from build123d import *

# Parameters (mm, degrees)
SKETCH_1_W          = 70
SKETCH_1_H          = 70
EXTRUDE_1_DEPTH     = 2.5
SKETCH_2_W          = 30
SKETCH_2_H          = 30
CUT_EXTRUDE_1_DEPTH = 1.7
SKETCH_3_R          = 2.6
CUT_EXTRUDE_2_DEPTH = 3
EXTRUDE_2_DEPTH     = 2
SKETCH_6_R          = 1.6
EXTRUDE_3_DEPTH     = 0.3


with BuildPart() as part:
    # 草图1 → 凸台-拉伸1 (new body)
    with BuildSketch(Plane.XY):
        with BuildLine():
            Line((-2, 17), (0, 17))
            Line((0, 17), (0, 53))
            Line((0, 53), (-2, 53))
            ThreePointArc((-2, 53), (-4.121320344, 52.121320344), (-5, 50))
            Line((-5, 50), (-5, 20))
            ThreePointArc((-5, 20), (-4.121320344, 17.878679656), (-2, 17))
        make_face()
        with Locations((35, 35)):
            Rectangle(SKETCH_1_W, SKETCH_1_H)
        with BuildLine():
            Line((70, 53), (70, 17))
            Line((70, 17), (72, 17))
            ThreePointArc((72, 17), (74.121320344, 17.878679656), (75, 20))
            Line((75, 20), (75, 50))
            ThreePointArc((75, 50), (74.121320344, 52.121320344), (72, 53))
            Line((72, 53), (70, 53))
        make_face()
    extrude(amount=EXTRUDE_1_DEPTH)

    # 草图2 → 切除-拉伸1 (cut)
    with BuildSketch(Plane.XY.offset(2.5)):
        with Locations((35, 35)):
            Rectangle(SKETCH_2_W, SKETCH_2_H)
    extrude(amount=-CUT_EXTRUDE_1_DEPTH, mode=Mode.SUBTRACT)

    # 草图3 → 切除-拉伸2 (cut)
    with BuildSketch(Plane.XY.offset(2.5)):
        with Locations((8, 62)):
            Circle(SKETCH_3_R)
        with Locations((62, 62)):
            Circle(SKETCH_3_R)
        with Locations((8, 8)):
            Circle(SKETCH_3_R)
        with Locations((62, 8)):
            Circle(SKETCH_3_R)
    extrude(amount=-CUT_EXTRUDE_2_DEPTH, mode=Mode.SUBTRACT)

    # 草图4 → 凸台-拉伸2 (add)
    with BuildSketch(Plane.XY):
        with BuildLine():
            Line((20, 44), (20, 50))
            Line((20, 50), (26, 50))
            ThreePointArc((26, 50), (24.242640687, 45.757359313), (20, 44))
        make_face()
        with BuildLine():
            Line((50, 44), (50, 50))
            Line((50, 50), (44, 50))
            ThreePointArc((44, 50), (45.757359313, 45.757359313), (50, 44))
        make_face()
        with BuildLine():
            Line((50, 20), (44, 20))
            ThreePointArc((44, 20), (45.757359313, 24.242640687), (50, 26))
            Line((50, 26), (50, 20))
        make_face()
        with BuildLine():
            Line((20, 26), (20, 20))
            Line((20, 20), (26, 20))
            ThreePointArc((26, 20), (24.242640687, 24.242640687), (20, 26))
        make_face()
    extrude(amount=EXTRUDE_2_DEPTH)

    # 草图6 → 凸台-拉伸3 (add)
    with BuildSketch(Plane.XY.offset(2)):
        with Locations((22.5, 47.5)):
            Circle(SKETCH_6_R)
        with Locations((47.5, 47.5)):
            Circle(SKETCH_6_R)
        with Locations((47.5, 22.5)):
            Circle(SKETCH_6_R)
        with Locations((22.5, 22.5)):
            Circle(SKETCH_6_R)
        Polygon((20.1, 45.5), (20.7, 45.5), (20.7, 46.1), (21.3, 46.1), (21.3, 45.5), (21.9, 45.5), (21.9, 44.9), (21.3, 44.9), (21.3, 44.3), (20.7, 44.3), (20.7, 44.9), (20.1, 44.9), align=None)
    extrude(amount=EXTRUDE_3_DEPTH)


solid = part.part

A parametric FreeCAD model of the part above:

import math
import FreeCAD as App
import Part
import Sketcher
from FreeCAD import Vector
Q = App.Units.Quantity


def add_polygon(sketch, points):
    """Adds a closed chain of lines whose ends are joined by coincident constraints."""
    first, n = sketch.GeometryCount, len(points)
    for a, b in zip(points, points[1:] + points[:1]):
        sketch.addGeometry(Part.LineSegment(App.Vector(*a, 0), App.Vector(*b, 0)), False)
    for i in range(n):
        sketch.addConstraint(Sketcher.Constraint("Coincident", first + i, 2, first + (i + 1) % n, 1))

doc = App.newDocument("Part")
body = doc.addObject("PartDesign::Body", "Body")

sketch1 = doc.addObject("Sketcher::SketchObject", "Sketch")
body.addObject(sketch1)
sketch1.AttachmentSupport = (doc.XY_Plane, [""])
sketch1.MapMode = "FlatFace"
sketch1.addGeometry(Part.LineSegment(Vector(-2, 17, 0), Vector(0, 17, 0)), False)
sketch1.addGeometry(Part.LineSegment(Vector(0, 17, 0), Vector(0, 0, 0)), False)
sketch1.addGeometry(Part.LineSegment(Vector(0, 0, 0), Vector(70, 0, 0)), False)
sketch1.addGeometry(Part.LineSegment(Vector(70, 0, 0), Vector(70, 17, 0)), False)
sketch1.addGeometry(Part.LineSegment(Vector(70, 17, 0), Vector(72, 17, 0)), False)
sketch1.addGeometry(Part.ArcOfCircle(Part.Circle(Vector(72, 20, 0), Vector(0, 0, 1), 3), math.radians(-90), math.radians(0)), False)
sketch1.addGeometry(Part.LineSegment(Vector(75, 20, 0), Vector(75, 50, 0)), False)
sketch1.addGeometry(Part.ArcOfCircle(Part.Circle(Vector(72, 50, 0), Vector(0, 0, 1), 3), math.radians(0), math.radians(90)), False)
sketch1.addGeometry(Part.LineSegment(Vector(72, 53, 0), Vector(70, 53, 0)), False)
sketch1.addGeometry(Part.LineSegment(Vector(70, 53, 0), Vector(70, 70, 0)), False)
sketch1.addGeometry(Part.LineSegment(Vector(70, 70, 0), Vector(0, 70, 0)), False)
sketch1.addGeometry(Part.LineSegment(Vector(0, 70, 0), Vector(0, 53, 0)), False)
sketch1.addGeometry(Part.LineSegment(Vector(0, 53, 0), Vector(-2, 53, 0)), False)
sketch1.addGeometry(Part.ArcOfCircle(Part.Circle(Vector(-2, 50, 0), Vector(0, 0, 1), 3), math.radians(90), math.radians(180)), False)
sketch1.addGeometry(Part.LineSegment(Vector(-5, 50, 0), Vector(-5, 20, 0)), False)
sketch1.addGeometry(Part.ArcOfCircle(Part.Circle(Vector(-2, 20, 0), Vector(0, 0, 1), 3), math.radians(180), math.radians(270)), False)
sketch1.addConstraint(Sketcher.Constraint("Coincident", 0, 2, 1, 1))
sketch1.addConstraint(Sketcher.Constraint("Coincident", 1, 2, 2, 1))
sketch1.addConstraint(Sketcher.Constraint("Coincident", 2, 2, 3, 1))
sketch1.addConstraint(Sketcher.Constraint("Coincident", 3, 2, 4, 1))
sketch1.addConstraint(Sketcher.Constraint("Tangent", 4, 2, 5, 1))
sketch1.addConstraint(Sketcher.Constraint("Tangent", 5, 2, 6, 1))
sketch1.addConstraint(Sketcher.Constraint("Tangent", 6, 2, 7, 1))
sketch1.addConstraint(Sketcher.Constraint("Tangent", 7, 2, 8, 1))
sketch1.addConstraint(Sketcher.Constraint("Coincident", 8, 2, 9, 1))
sketch1.addConstraint(Sketcher.Constraint("Coincident", 9, 2, 10, 1))
sketch1.addConstraint(Sketcher.Constraint("Coincident", 10, 2, 11, 1))
sketch1.addConstraint(Sketcher.Constraint("Coincident", 11, 2, 12, 1))
sketch1.addConstraint(Sketcher.Constraint("Tangent", 12, 2, 13, 1))
sketch1.addConstraint(Sketcher.Constraint("Tangent", 13, 2, 14, 1))
sketch1.addConstraint(Sketcher.Constraint("Tangent", 14, 2, 15, 1))
sketch1.addConstraint(Sketcher.Constraint("Tangent", 15, 2, 0, 1))
sketch1.addConstraint(Sketcher.Constraint("Horizontal", 0))
sketch1.addConstraint(Sketcher.Constraint("Vertical", 1))
sketch1.addConstraint(Sketcher.Constraint("Horizontal", 2))
sketch1.addConstraint(Sketcher.Constraint("Vertical", 3))
sketch1.addConstraint(Sketcher.Constraint("Horizontal", 4))
sketch1.addConstraint(Sketcher.Constraint("Vertical", 6))
sketch1.addConstraint(Sketcher.Constraint("Horizontal", 8))
sketch1.addConstraint(Sketcher.Constraint("Vertical", 9))
sketch1.addConstraint(Sketcher.Constraint("Horizontal", 10))
sketch1.addConstraint(Sketcher.Constraint("Vertical", 11))
sketch1.addConstraint(Sketcher.Constraint("Horizontal", 12))
sketch1.addConstraint(Sketcher.Constraint("Vertical", 14))
sketch1.addConstraint(Sketcher.Constraint("Coincident", 1, 2, -1, 1))
sketch1.addConstraint(Sketcher.Constraint("Equal", 5, 7))
sketch1.addConstraint(Sketcher.Constraint("Equal", 7, 13))
sketch1.addConstraint(Sketcher.Constraint("Equal", 13, 15))
sketch1.addConstraint(Sketcher.Constraint("PointOnObject", 10, 2, -2))
sketch1.addConstraint(Sketcher.Constraint("Horizontal", 7, 3, 13, 3))
sketch1.addConstraint(Sketcher.Constraint("Horizontal", 5, 3, 15, 3))
sketch1.addConstraint(Sketcher.Constraint("Vertical", 3, 2, 8, 2))
sketch1.addConstraint(Sketcher.Constraint("Equal", 0, 4))
sketch1.addConstraint(Sketcher.Constraint("Equal", 3, 9))
sketch1.addConstraint(Sketcher.Constraint("Radius", 5, Q("3 mm")))
sketch1.addConstraint(Sketcher.Constraint("DistanceX", 0, 1, 0, 2, Q("2 mm")))
sketch1.addConstraint(Sketcher.Constraint("DistanceX", 2, 1, 2, 2, Q("70 mm")))
sketch1.addConstraint(Sketcher.Constraint("DistanceY", 1, 2, 1, 1, Q("17 mm")))
sketch1.addConstraint(Sketcher.Constraint("DistanceY", 6, 1, 6, 2, Q("30 mm")))
pad1 = doc.addObject("PartDesign::Pad", "Pad")
body.addObject(pad1)
pad1.Profile = sketch1
pad1.Length = 2.5

sketch2 = doc.addObject("Sketcher::SketchObject", "Sketch001")
body.addObject(sketch2)
sketch2.AttachmentSupport = (doc.XY_Plane, [""])
sketch2.MapMode = "FlatFace"
sketch2.AttachmentOffset = App.Placement(Vector(0, 0, 2.5), App.Rotation())
add_polygon(sketch2, [(20, 50), (20, 20), (50, 20), (50, 50)])
sketch2.addConstraint(Sketcher.Constraint("Vertical", 0))
sketch2.addConstraint(Sketcher.Constraint("Horizontal", 1))
sketch2.addConstraint(Sketcher.Constraint("Vertical", 2))
sketch2.addConstraint(Sketcher.Constraint("Horizontal", 3))
sketch2.addConstraint(Sketcher.Constraint("Equal", 3, 0))
sketch2.addConstraint(Sketcher.Constraint("DistanceX", 1, 1, 1, 2, Q("30 mm")))
sketch2.addConstraint(Sketcher.Constraint("DistanceX", -1, 1, 0, 2, Q("20 mm")))
sketch2.addConstraint(Sketcher.Constraint("DistanceY", -1, 1, 0, 2, Q("20 mm")))
pocket1 = doc.addObject("PartDesign::Pocket", "Pocket")
body.addObject(pocket1)
pocket1.Profile = sketch2
pocket1.Length = 1.7

sketch3 = doc.addObject("Sketcher::SketchObject", "Sketch002")
body.addObject(sketch3)
sketch3.AttachmentSupport = (doc.XY_Plane, [""])
sketch3.MapMode = "FlatFace"
sketch3.AttachmentOffset = App.Placement(Vector(0, 0, 2.5), App.Rotation())
sketch3.addGeometry(Part.Circle(Vector(8, 62, 0), Vector(0, 0, 1), 2.6), False)
sketch3.addGeometry(Part.Circle(Vector(62, 62, 0), Vector(0, 0, 1), 2.6), False)
sketch3.addGeometry(Part.Circle(Vector(8, 8, 0), Vector(0, 0, 1), 2.6), False)
sketch3.addGeometry(Part.Circle(Vector(62, 8, 0), Vector(0, 0, 1), 2.6), False)
sketch3.addConstraint(Sketcher.Constraint("Equal", 0, 1))
sketch3.addConstraint(Sketcher.Constraint("Equal", 1, 2))
sketch3.addConstraint(Sketcher.Constraint("Equal", 2, 3))
sketch3.addConstraint(Sketcher.Constraint("Horizontal", 0, 3, 1, 3))
sketch3.addConstraint(Sketcher.Constraint("Horizontal", 2, 3, 3, 3))
sketch3.addConstraint(Sketcher.Constraint("Vertical", 0, 3, 2, 3))
sketch3.addConstraint(Sketcher.Constraint("Vertical", 1, 3, 3, 3))
sketch3.addConstraint(Sketcher.Constraint("Diameter", 0, Q("5.2 mm")))
sketch3.addConstraint(Sketcher.Constraint("DistanceX", -1, 1, 0, 3, Q("8 mm")))
sketch3.addConstraint(Sketcher.Constraint("DistanceY", -1, 1, 0, 3, Q("62 mm")))
sketch3.addConstraint(Sketcher.Constraint("DistanceX", -1, 1, 1, 3, Q("62 mm")))
sketch3.addConstraint(Sketcher.Constraint("DistanceY", -1, 1, 2, 3, Q("8 mm")))
pocket2 = doc.addObject("PartDesign::Pocket", "Pocket001")
body.addObject(pocket2)
pocket2.Profile = sketch3
pocket2.Length = 3

sketch4 = doc.addObject("Sketcher::SketchObject", "Sketch003")
body.addObject(sketch4)
sketch4.AttachmentSupport = (doc.XY_Plane, [""])
sketch4.MapMode = "FlatFace"
sketch4.addGeometry(Part.LineSegment(Vector(20, 50, 0), Vector(20, 44, 0)), False)
sketch4.addGeometry(Part.ArcOfCircle(Part.Circle(Vector(20, 50, 0), Vector(0, 0, 1), 6), math.radians(-90), math.radians(0)), False)
sketch4.addGeometry(Part.LineSegment(Vector(26, 50, 0), Vector(20, 50, 0)), False)
sketch4.addGeometry(Part.LineSegment(Vector(50, 44, 0), Vector(50, 50, 0)), False)
sketch4.addGeometry(Part.LineSegment(Vector(50, 50, 0), Vector(44, 50, 0)), False)
sketch4.addGeometry(Part.ArcOfCircle(Part.Circle(Vector(50, 50, 0), Vector(0, 0, 1), 6), math.radians(180), math.radians(270)), False)
sketch4.addGeometry(Part.LineSegment(Vector(44, 20, 0), Vector(50, 20, 0)), False)
sketch4.addGeometry(Part.LineSegment(Vector(50, 20, 0), Vector(50, 26, 0)), False)
sketch4.addGeometry(Part.ArcOfCircle(Part.Circle(Vector(50, 20, 0), Vector(0, 0, 1), 6), math.radians(90), math.radians(180)), False)
sketch4.addGeometry(Part.LineSegment(Vector(20, 26, 0), Vector(20, 20, 0)), False)
sketch4.addGeometry(Part.LineSegment(Vector(20, 20, 0), Vector(26, 20, 0)), False)
sketch4.addGeometry(Part.ArcOfCircle(Part.Circle(Vector(20, 20, 0), Vector(0, 0, 1), 6), math.radians(0), math.radians(90)), False)
sketch4.addConstraint(Sketcher.Constraint("Coincident", 0, 2, 1, 1))
sketch4.addConstraint(Sketcher.Constraint("Coincident", 1, 2, 2, 1))
sketch4.addConstraint(Sketcher.Constraint("Coincident", 2, 2, 0, 1))
sketch4.addConstraint(Sketcher.Constraint("Coincident", 3, 2, 4, 1))
sketch4.addConstraint(Sketcher.Constraint("Coincident", 4, 2, 5, 1))
sketch4.addConstraint(Sketcher.Constraint("Coincident", 5, 2, 3, 1))
sketch4.addConstraint(Sketcher.Constraint("Coincident", 6, 2, 7, 1))
sketch4.addConstraint(Sketcher.Constraint("Coincident", 7, 2, 8, 1))
sketch4.addConstraint(Sketcher.Constraint("Coincident", 8, 2, 6, 1))
sketch4.addConstraint(Sketcher.Constraint("Coincident", 9, 2, 10, 1))
sketch4.addConstraint(Sketcher.Constraint("Coincident", 10, 2, 11, 1))
sketch4.addConstraint(Sketcher.Constraint("Coincident", 11, 2, 9, 1))
sketch4.addConstraint(Sketcher.Constraint("Vertical", 0))
sketch4.addConstraint(Sketcher.Constraint("Horizontal", 2))
sketch4.addConstraint(Sketcher.Constraint("Vertical", 3))
sketch4.addConstraint(Sketcher.Constraint("Horizontal", 4))
sketch4.addConstraint(Sketcher.Constraint("Horizontal", 6))
sketch4.addConstraint(Sketcher.Constraint("Vertical", 7))
sketch4.addConstraint(Sketcher.Constraint("Vertical", 9))
sketch4.addConstraint(Sketcher.Constraint("Horizontal", 10))
sketch4.addConstraint(Sketcher.Constraint("Coincident", 2, 2, 1, 3))
sketch4.addConstraint(Sketcher.Constraint("Coincident", 3, 2, 5, 3))
sketch4.addConstraint(Sketcher.Constraint("Coincident", 6, 2, 8, 3))
sketch4.addConstraint(Sketcher.Constraint("Coincident", 9, 2, 11, 3))
sketch4.addConstraint(Sketcher.Constraint("Equal", 1, 5))
sketch4.addConstraint(Sketcher.Constraint("Equal", 5, 8))
sketch4.addConstraint(Sketcher.Constraint("Equal", 8, 11))
sketch4.addConstraint(Sketcher.Constraint("Horizontal", 1, 3, 5, 3))
sketch4.addConstraint(Sketcher.Constraint("Horizontal", 8, 3, 11, 3))
sketch4.addConstraint(Sketcher.Constraint("Vertical", 5, 3, 8, 3))
sketch4.addConstraint(Sketcher.Constraint("Vertical", 1, 3, 11, 3))
sketch4.addConstraint(Sketcher.Constraint("Radius", 1, Q("6 mm")))
sketch4.addConstraint(Sketcher.Constraint("DistanceX", -1, 1, 1, 3, Q("20 mm")))
sketch4.addConstraint(Sketcher.Constraint("DistanceY", -1, 1, 1, 3, Q("50 mm")))
sketch4.addConstraint(Sketcher.Constraint("DistanceX", -1, 1, 5, 3, Q("50 mm")))
sketch4.addConstraint(Sketcher.Constraint("DistanceY", -1, 1, 8, 3, Q("20 mm")))
pad2 = doc.addObject("PartDesign::Pad", "Pad001")
body.addObject(pad2)
pad2.Profile = sketch4
pad2.Length = 2

sketch5 = doc.addObject("Sketcher::SketchObject", "Sketch004")
body.addObject(sketch5)
sketch5.AttachmentSupport = (doc.XY_Plane, [""])
sketch5.MapMode = "FlatFace"
sketch5.AttachmentOffset = App.Placement(Vector(0, 0, 2), App.Rotation())
sketch5.addGeometry(Part.Circle(Vector(22.5, 47.5, 0), Vector(0, 0, 1), 1.6), False)
sketch5.addGeometry(Part.Circle(Vector(47.5, 47.5, 0), Vector(0, 0, 1), 1.6), False)
sketch5.addGeometry(Part.Circle(Vector(47.5, 22.5, 0), Vector(0, 0, 1), 1.6), False)
sketch5.addGeometry(Part.Circle(Vector(22.5, 22.5, 0), Vector(0, 0, 1), 1.6), False)
add_polygon(sketch5, [(20.7, 45.5), (20.1, 45.5), (20.1, 44.9), (20.7, 44.9), (20.7, 44.3), (21.3, 44.3), (21.3, 44.9), (21.9, 44.9), (21.9, 45.5), (21.3, 45.5), (21.3, 46.1), (20.7, 46.1)])
sketch5.addConstraint(Sketcher.Constraint("Horizontal", 4))
sketch5.addConstraint(Sketcher.Constraint("Vertical", 5))
sketch5.addConstraint(Sketcher.Constraint("Horizontal", 6))
sketch5.addConstraint(Sketcher.Constraint("Vertical", 7))
sketch5.addConstraint(Sketcher.Constraint("Horizontal", 8))
sketch5.addConstraint(Sketcher.Constraint("Vertical", 9))
sketch5.addConstraint(Sketcher.Constraint("Horizontal", 10))
sketch5.addConstraint(Sketcher.Constraint("Vertical", 11))
sketch5.addConstraint(Sketcher.Constraint("Horizontal", 12))
sketch5.addConstraint(Sketcher.Constraint("Vertical", 13))
sketch5.addConstraint(Sketcher.Constraint("Horizontal", 14))
sketch5.addConstraint(Sketcher.Constraint("Vertical", 15))
sketch5.addConstraint(Sketcher.Constraint("Equal", 0, 1))
sketch5.addConstraint(Sketcher.Constraint("Equal", 1, 2))
sketch5.addConstraint(Sketcher.Constraint("Equal", 2, 3))
sketch5.addConstraint(Sketcher.Constraint("Horizontal", 0, 3, 1, 3))
sketch5.addConstraint(Sketcher.Constraint("Horizontal", 2, 3, 3, 3))
sketch5.addConstraint(Sketcher.Constraint("Horizontal", 6, 2, 9, 2))
sketch5.addConstraint(Sketcher.Constraint("Horizontal", 4, 2, 11, 2))
sketch5.addConstraint(Sketcher.Constraint("Vertical", 1, 3, 2, 3))
sketch5.addConstraint(Sketcher.Constraint("Vertical", 0, 3, 3, 3))
sketch5.addConstraint(Sketcher.Constraint("Vertical", 9, 2, 12, 2))
sketch5.addConstraint(Sketcher.Constraint("Vertical", 7, 2, 14, 2))
sketch5.addConstraint(Sketcher.Constraint("Equal", 6, 8))
sketch5.addConstraint(Sketcher.Constraint("Equal", 8, 10))
sketch5.addConstraint(Sketcher.Constraint("Equal", 14, 5))
sketch5.addConstraint(Sketcher.Constraint("Equal", 5, 7))
sketch5.addConstraint(Sketcher.Constraint("Equal", 11, 13))
sketch5.addConstraint(Sketcher.Constraint("Diameter", 0, Q("3.2 mm")))
sketch5.addConstraint(Sketcher.Constraint("DistanceX", 4, 2, 4, 1, Q("0.6 mm")))
sketch5.addConstraint(Sketcher.Constraint("DistanceX", 0, 3, 1, 3, Q("25 mm")))
sketch5.addConstraint(Sketcher.Constraint("DistanceY", 2, 3, 1, 3, Q("25 mm")))
sketch5.addConstraint(Sketcher.Constraint("DistanceY", 4, 2, 0, 3, Q("2 mm")))
sketch5.addConstraint(Sketcher.Constraint("DistanceX", -1, 1, 0, 3, Q("22.5 mm")))
sketch5.addConstraint(Sketcher.Constraint("DistanceY", -1, 1, 0, 3, Q("47.5 mm")))
sketch5.addConstraint(Sketcher.Constraint("DistanceX", -1, 1, 4, 2, Q("20.1 mm")))
pad3 = doc.addObject("PartDesign::Pad", "Pad002")
body.addObject(pad3)
pad3.Profile = sketch5
pad3.Length = 0.3

doc.recompute()
